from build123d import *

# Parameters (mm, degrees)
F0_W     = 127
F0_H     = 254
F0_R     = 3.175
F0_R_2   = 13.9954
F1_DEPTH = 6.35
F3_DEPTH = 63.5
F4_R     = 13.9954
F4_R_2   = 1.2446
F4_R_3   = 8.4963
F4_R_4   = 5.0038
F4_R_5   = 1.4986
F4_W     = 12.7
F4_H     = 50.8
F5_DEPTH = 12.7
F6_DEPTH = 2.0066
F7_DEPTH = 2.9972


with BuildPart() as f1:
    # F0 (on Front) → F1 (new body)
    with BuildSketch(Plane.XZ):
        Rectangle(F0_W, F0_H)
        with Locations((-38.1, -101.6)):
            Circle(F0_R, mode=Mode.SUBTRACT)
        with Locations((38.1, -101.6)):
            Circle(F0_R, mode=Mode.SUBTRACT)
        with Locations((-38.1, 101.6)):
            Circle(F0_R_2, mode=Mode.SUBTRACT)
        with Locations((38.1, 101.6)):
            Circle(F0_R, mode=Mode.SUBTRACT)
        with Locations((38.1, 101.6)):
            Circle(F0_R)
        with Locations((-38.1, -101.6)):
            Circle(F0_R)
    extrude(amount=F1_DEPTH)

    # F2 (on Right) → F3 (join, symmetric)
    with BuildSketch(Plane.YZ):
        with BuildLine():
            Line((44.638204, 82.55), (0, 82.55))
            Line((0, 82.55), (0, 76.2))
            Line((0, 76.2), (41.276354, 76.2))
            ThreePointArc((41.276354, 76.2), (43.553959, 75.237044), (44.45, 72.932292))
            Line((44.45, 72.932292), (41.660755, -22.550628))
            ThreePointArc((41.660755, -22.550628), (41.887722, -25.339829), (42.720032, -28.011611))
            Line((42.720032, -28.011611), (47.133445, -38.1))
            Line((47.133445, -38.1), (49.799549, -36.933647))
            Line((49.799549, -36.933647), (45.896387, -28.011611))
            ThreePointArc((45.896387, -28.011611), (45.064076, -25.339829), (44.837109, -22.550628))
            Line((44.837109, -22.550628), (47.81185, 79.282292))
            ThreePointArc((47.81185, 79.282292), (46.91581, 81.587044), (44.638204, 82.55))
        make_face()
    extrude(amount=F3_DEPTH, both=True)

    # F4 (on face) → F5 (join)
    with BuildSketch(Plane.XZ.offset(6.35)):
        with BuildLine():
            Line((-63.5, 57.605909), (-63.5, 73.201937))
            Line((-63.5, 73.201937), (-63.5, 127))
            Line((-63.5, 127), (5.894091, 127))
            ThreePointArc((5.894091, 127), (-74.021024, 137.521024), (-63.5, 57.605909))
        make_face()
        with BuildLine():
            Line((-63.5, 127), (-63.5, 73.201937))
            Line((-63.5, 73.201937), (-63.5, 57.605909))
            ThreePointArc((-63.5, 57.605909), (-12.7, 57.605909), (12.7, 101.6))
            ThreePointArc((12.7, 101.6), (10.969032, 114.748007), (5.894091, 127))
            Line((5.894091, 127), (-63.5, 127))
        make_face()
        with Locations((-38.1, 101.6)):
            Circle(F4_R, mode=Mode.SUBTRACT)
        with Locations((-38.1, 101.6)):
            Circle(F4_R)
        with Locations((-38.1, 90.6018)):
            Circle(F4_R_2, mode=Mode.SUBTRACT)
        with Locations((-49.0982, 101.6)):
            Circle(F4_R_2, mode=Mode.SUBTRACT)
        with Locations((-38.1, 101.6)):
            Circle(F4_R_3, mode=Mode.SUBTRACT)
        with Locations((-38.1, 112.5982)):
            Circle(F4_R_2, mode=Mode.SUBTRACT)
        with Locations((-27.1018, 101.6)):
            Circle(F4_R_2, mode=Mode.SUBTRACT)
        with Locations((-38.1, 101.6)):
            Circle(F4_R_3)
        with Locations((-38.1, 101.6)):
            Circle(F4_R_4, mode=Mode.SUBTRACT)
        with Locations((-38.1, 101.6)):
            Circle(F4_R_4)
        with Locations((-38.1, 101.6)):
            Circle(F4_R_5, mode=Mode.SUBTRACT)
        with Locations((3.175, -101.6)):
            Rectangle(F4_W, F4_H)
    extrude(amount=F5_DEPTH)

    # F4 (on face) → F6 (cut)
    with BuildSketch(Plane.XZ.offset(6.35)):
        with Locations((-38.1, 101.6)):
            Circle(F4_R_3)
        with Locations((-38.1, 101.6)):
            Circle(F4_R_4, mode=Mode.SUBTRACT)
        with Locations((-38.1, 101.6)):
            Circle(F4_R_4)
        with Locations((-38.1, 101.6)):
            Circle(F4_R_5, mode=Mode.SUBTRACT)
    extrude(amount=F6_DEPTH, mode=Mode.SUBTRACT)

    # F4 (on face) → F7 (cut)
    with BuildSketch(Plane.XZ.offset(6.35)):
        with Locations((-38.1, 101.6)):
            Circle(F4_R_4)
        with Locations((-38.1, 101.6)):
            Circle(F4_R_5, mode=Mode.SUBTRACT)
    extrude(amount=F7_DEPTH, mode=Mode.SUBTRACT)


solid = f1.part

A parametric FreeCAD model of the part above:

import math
import FreeCAD as App
import Part
import Sketcher
from FreeCAD import Vector
Q = App.Units.Quantity


def add_polygon(sketch, points):
    """Adds a closed chain of lines whose ends are joined by coincident constraints."""
    first, n = sketch.GeometryCount, len(points)
    for a, b in zip(points, points[1:] + points[:1]):
        sketch.addGeometry(Part.LineSegment(App.Vector(*a, 0), App.Vector(*b, 0)), False)
    for i in range(n):
        sketch.addConstraint(Sketcher.Constraint("Coincident", first + i, 2, first + (i + 1) % n, 1))

doc = App.newDocument("Part")
body = doc.addObject("PartDesign::Body", "Body")

# Sketch on XZ plane
sketch1 = body.newObject("Sketcher::SketchObject", "Sketch")
sketch1.AttachmentSupport = (doc.getObject("XZ_Plane"), [""])
sketch1.MapMode = "FlatFace"
add_polygon(sketch1, [(-63.5, 127), (-63.5, -127), (63.5, -127), (63.5, 127)])  # lines 0-3
sketch1.addGeometry(Part.Circle(Vector(38.1, -101.6, 0), Vector(0, 0, 1), 3.175), False)  # 4
sketch1.addGeometry(Part.Circle(Vector(-38.1, 101.6, 0), Vector(0, 0, 1), 13.9954), False)  # 5
sketch1.addConstraint(Sketcher.Constraint("Vertical", 0))
sketch1.addConstraint(Sketcher.Constraint("Horizontal", 1))
sketch1.addConstraint(Sketcher.Constraint("Vertical", 2))
sketch1.addConstraint(Sketcher.Constraint("Horizontal", 3))
sketch1.addConstraint(Sketcher.Constraint("Symmetric", 4, 3, 5, 3, -1, 1))
sketch1.addConstraint(Sketcher.Constraint("Symmetric", 0, 2, 2, 2, -1, 1))
sketch1.addConstraint(Sketcher.Constraint("Diameter", 4, Q("0.25 in")))
sketch1.addConstraint(Sketcher.Constraint("DistanceX", 1, 1, 1, 2, Q("5 in")))
sketch1.addConstraint(Sketcher.Constraint("DistanceY", 0, 2, 0, 1, Q("10 in")))
sketch1.addConstraint(Sketcher.Constraint("Diameter", 5, Q("1.102 in")))
sketch1.addConstraint(Sketcher.Constraint("DistanceY", 4, 3, -1, 1, Q("4 in")))
sketch1.addConstraint(Sketcher.Constraint("DistanceX", 5, 3, 4, 3, Q("3 in")))
pad1 = body.newObject("PartDesign::Pad", "Pad")
pad1.Profile = sketch1
pad1.Length = Q("0.25 in")

# Sketch on YZ plane
sketch2 = body.newObject("Sketcher::SketchObject", "Sketch001")
sketch2.AttachmentSupport = (doc.getObject("YZ_Plane"), [""])
sketch2.MapMode = "FlatFace"
sketch2.addGeometry(Part.LineSegment(Vector(44.638204, 82.55, 0), Vector(0, 82.55, 0)), False)
sketch2.addGeometry(Part.LineSegment(Vector(0, 82.55, 0), Vector(0, 76.2, 0)), False)
sketch2.addGeometry(Part.LineSegment(Vector(0, 76.2, 0), Vector(41.276354, 76.2, 0)), False)
sketch2.addGeometry(Part.ArcOfCircle(Part.Circle(Vector(41.276353, 73.025, 0), Vector(0, 0, 1), 3.175), math.radians(-1.673233), math.radians(89.99999)), False)
sketch2.addGeometry(Part.LineSegment(Vector(44.45, 72.932292, 0), Vector(41.660755, -22.550628, 0)), False)
sketch2.addGeometry(Part.ArcOfCircle(Part.Circle(Vector(54.355356, -22.921459, 0), Vector(0, 0, 1), 12.700016), math.radians(178.326768), math.radians(203.628128)), False)
sketch2.addGeometry(Part.LineSegment(Vector(42.720032, -28.011611, 0), Vector(47.133445, -38.1, 0)), False)
sketch2.addGeometry(Part.LineSegment(Vector(47.133445, -38.1, 0), Vector(49.799549, -36.933647, 0)), False)
sketch2.addGeometry(Part.LineSegment(Vector(49.799549, -36.933647, 0), Vector(45.896387, -28.011611, 0)), False)
sketch2.addGeometry(Part.ArcOfCircle(Part.Circle(Vector(57.531691, -22.921461, 0), Vector(0, 0, 1), 12.699997), math.radians(178.326758), math.radians(203.628157)), False)
sketch2.addGeometry(Part.LineSegment(Vector(44.837109, -22.550628, 0), Vector(47.81185, 79.282292, 0)), False)
sketch2.addGeometry(Part.ArcOfCircle(Part.Circle(Vector(44.638205, 79.375001, 0), Vector(0, 0, 1), 3.174999), math.radians(-1.673263), math.radians(90.000021)), False)
sketch2.addConstraint(Sketcher.Constraint("Coincident", 0, 2, 1, 1))
sketch2.addConstraint(Sketcher.Constraint("Coincident", 1, 2, 2, 1))
sketch2.addConstraint(Sketcher.Constraint("Tangent", 2, 2, 3, 2))
sketch2.addConstraint(Sketcher.Constraint("Tangent", 3, 1, 4, 1))
sketch2.addConstraint(Sketcher.Constraint("Tangent", 4, 2, 5, 1))
sketch2.addConstraint(Sketcher.Constraint("Tangent", 5, 2, 6, 1))
sketch2.addConstraint(Sketcher.Constraint("Coincident", 6, 2, 7, 1))
sketch2.addConstraint(Sketcher.Constraint("Coincident", 7, 2, 8, 1))
sketch2.addConstraint(Sketcher.Constraint("Tangent", 8, 2, 9, 2))
sketch2.addConstraint(Sketcher.Constraint("Tangent", 9, 1, 10, 1))
sketch2.addConstraint(Sketcher.Constraint("Tangent", 10, 2, 11, 1))
sketch2.addConstraint(Sketcher.Constraint("Tangent", 11, 2, 0, 1))
sketch2.addConstraint(Sketcher.Constraint("Horizontal", 0))
sketch2.addConstraint(Sketcher.Constraint("Vertical", 1))
sketch2.addConstraint(Sketcher.Constraint("Horizontal", 2))
sketch2.addConstraint(Sketcher.Constraint("Equal", 3, 11))
sketch2.addConstraint(Sketcher.Constraint("PointOnObject", 0, 2, -2))
sketch2.addConstraint(Sketcher.Constraint("Perpendicular", 6, 7))
sketch2.addConstraint(Sketcher.Constraint("Perpendicular", 7, 8))
sketch2.addConstraint(Sketcher.Constraint("Parallel", 4, 10))
sketch2.addConstraint(Sketcher.Constraint("Horizontal", 5, 3, 9, 3))
sketch2.addConstraint(Sketcher.Constraint("Horizontal", 5, 2, 8, 2))
sketch2.addConstraint(Sketcher.Constraint("Radius", 9, Q("0.4999999 in")))
sketch2.addConstraint(Sketcher.Constraint("DistanceY", -1, 1, 1, 2, Q("3 in")))
sketch2.addConstraint(Sketcher.Constraint("Radius", 3, Q("0.125 in")))
sketch2.addConstraint(Sketcher.Constraint("DistanceY", 1, 2, 1, 1, Q("0.25 in")))
sketch2.addConstraint(Sketcher.Constraint("DistanceY", 6, 2, -1, 1, Q("1.5 in")))
sketch2.addConstraint(Sketcher.Constraint("DistanceX", -1, 1, 3, 1, Q("1.75 in")))
sketch2.addConstraint(Sketcher.Constraint("DistanceX", 3, 3, 4, 2, 0.384402))
sketch2.addConstraint(Sketcher.Constraint("Distance", 4, 95.523651))
sketch2.addConstraint(Sketcher.Constraint("Distance", 6, 11.011531))
sketch2.addConstraint(Sketcher.Constraint("Distance", 8, 9.73845))
pad2 = body.newObject("PartDesign::Pad", "Pad001")
pad2.Profile = sketch2
pad2.Length = Q("5 in")
pad2.Midplane = True

# Sketch on XZ plane
sketch3 = body.newObject("Sketcher::SketchObject", "Sketch002")
sketch3.AttachmentSupport = (doc.getObject("XZ_Plane"), [""])
sketch3.MapMode = "FlatFace"
sketch3.AttachmentOffset = App.Placement(Vector(0, 0, 0.25 * 25.4), App.Rotation())
sketch3.addGeometry(Part.ArcOfCircle(Part.Circle(Vector(-38.099999, 101.599999, 0), Vector(0, 0, 1), 50.8), math.radians(30.000001), math.radians(239.999999)), False)  # 0
sketch3.addGeometry(Part.ArcOfCircle(Part.Circle(Vector(-38.1, 101.6, 0), Vector(0, 0, 1), 50.8), math.radians(-120), math.radians(0.000001)), False)  # 1
sketch3.addGeometry(Part.ArcOfCircle(Part.Circle(Vector(-38.100009, 101.599998, 0), Vector(0, 0, 1), 50.800009), math.radians(0.000002), math.radians(29.999996)), False)  # 2
sketch3.addGeometry(Part.Circle(Vector(-38.1, 90.6018, 0), Vector(0, 0, 1), 1.2446), False)  # 3
sketch3.addGeometry(Part.Circle(Vector(-49.0982, 101.6, 0), Vector(0, 0, 1), 1.2446), False)  # 4
sketch3.addGeometry(Part.Circle(Vector(-38.1, 101.6, 0), Vector(0, 0, 1), 1.4986), False)  # 5
sketch3.addGeometry(Part.Circle(Vector(-27.1018, 101.6, 0), Vector(0, 0, 1), 1.2446), False)  # 6
sketch3.addGeometry(Part.Circle(Vector(-38.1, 112.5982, 0), Vector(0, 0, 1), 1.2446), False)  # 7
add_polygon(sketch3, [(-3.175, -76.2), (-3.175, -127), (9.525, -127), (9.525, -76.2)])  # lines 8-11
sketch3.addConstraint(Sketcher.Constraint("Tangent", 0, 2, 1, 1))
sketch3.addConstraint(Sketcher.Constraint("Tangent", 1, 2, 2, 1))
sketch3.addConstraint(Sketcher.Constraint("Tangent", 2, 2, 0, 1))
sketch3.addConstraint(Sketcher.Constraint("Vertical", 8))
sketch3.addConstraint(Sketcher.Constraint("Horizontal", 9))
sketch3.addConstraint(Sketcher.Constraint("Vertical", 10))
sketch3.addConstraint(Sketcher.Constraint("Horizontal", 11))
sketch3.addConstraint(Sketcher.Constraint("Coincident", 5, 3, 0, 3))
sketch3.addConstraint(Sketcher.Constraint("Equal", 3, 4))
sketch3.addConstraint(Sketcher.Constraint("Equal", 4, 6))
sketch3.addConstraint(Sketcher.Constraint("Equal", 6, 7))
sketch3.addConstraint(Sketcher.Constraint("Horizontal", 2, 3, 4, 3))
sketch3.addConstraint(Sketcher.Constraint("Horizontal", 5, 3, 6, 3))
sketch3.addConstraint(Sketcher.Constraint("Horizontal", 6, 3, 1, 2))
sketch3.addConstraint(Sketcher.Constraint("Vertical", 1, 3, 3, 3))
sketch3.addConstraint(Sketcher.Constraint("Vertical", 5, 3, 7, 3))
sketch3.addConstraint(Sketcher.Constraint("Radius", 0, Q("2 in")))
sketch3.addConstraint(Sketcher.Constraint("DistanceY", 8, 2, 8, 1, Q("2 in")))
sketch3.addConstraint(Sketcher.Constraint("Diameter", 3, Q("0.098 in")))
sketch3.addConstraint(Sketcher.Constraint("Diameter", 5, Q("0.118 in")))
sketch3.addConstraint(Sketcher.Constraint("DistanceX", 9, 1, 9, 2, Q("0.5 in")))
sketch3.addConstraint(Sketcher.Constraint("DistanceY", -1, 1, 0, 3, Q("4 in")))
sketch3.addConstraint(Sketcher.Constraint("DistanceY", -1, 1, 2, 2, Q("5 in")))
sketch3.addConstraint(Sketcher.Constraint("DistanceY", 8, 2, -1, 1, Q("5 in")))
sketch3.addConstraint(Sketcher.Constraint("DistanceX", 0, 2, 3, 3, Q("1 in")))
sketch3.addConstraint(Sketcher.Constraint("DistanceX", 0, 3, -1, 1, Q("1.5 in")))
sketch3.addConstraint(Sketcher.Constraint("DistanceY", -1, 1, 3, 3, Q("3.567 in")))
sketch3.addConstraint(Sketcher.Constraint("DistanceX", 4, 3, -1, 1, Q("1.933 in")))
sketch3.addConstraint(Sketcher.Constraint("DistanceX", 6, 3, -1, 1, Q("1.067 in")))
sketch3.addConstraint(Sketcher.Constraint("DistanceY", -1, 1, 7, 3, Q("4.433 in")))
sketch3.addConstraint(Sketcher.Constraint("DistanceX", 8, 2, -1, 1, Q("0.125 in")))
pad3 = body.newObject("PartDesign::Pad", "Pad002")
pad3.Profile = sketch3
pad3.Length = Q("0.5 in")

# Sketch on XZ plane
sketch4 = body.newObject("Sketcher::SketchObject", "Sketch003")
sketch4.AttachmentSupport = (doc.getObject("XZ_Plane"), [""])
sketch4.MapMode = "FlatFace"
sketch4.AttachmentOffset = App.Placement(Vector(0, 0, 0.25 * 25.4), App.Rotation())
sketch4.addGeometry(Part.Circle(Vector(-38.1, 101.6, 0), Vector(0, 0, 1), 8.4963), False)
sketch4.addGeometry(Part.Circle(Vector(-38.1, 101.6, 0), Vector(0, 0, 1), 1.4986), False)
sketch4.addConstraint(Sketcher.Constraint("Coincident", 1, 3, 0, 3))
sketch4.addConstraint(Sketcher.Constraint("Diameter", 0, Q("0.669 in")))
sketch4.addConstraint(Sketcher.Constraint("Diameter", 1, Q("0.118 in")))
sketch4.addConstraint(Sketcher.Constraint("DistanceY", -1, 1, 0, 3, Q("4 in")))
sketch4.addConstraint(Sketcher.Constraint("DistanceX", 0, 3, -1, 1, Q("1.5 in")))
pocket1 = body.newObject("PartDesign::Pocket", "Pocket")
pocket1.Profile = sketch4
pocket1.Length = Q("0.079 in")
pocket1.Reversed = True

# Sketch on XZ plane
sketch5 = body.newObject("Sketcher::SketchObject", "Sketch004")
sketch5.AttachmentSupport = (doc.getObject("XZ_Plane"), [""])
sketch5.MapMode = "FlatFace"
sketch5.AttachmentOffset = App.Placement(Vector(0, 0, 0.25 * 25.4), App.Rotation())
sketch5.addGeometry(Part.Circle(Vector(-38.1, 101.6, 0), Vector(0, 0, 1), 5.0038), False)
sketch5.addGeometry(Part.Circle(Vector(-38.1, 101.6, 0), Vector(0, 0, 1), 1.4986), False)
sketch5.addConstraint(Sketcher.Constraint("Coincident", 1, 3, 0, 3))
sketch5.addConstraint(Sketcher.Constraint("Diameter", 0, Q("0.394 in")))
sketch5.addConstraint(Sketcher.Constraint("Diameter", 1, Q("0.118 in")))
sketch5.addConstraint(Sketcher.Constraint("DistanceY", -1, 1, 0, 3, Q("4 in")))
sketch5.addConstraint(Sketcher.Constraint("DistanceX", 0, 3, -1, 1, Q("1.5 in")))
pocket2 = body.newObject("PartDesign::Pocket", "Pocket001")
pocket2.Profile = sketch5
pocket2.Length = Q("0.118 in")
pocket2.Reversed = True

doc.recompute()
